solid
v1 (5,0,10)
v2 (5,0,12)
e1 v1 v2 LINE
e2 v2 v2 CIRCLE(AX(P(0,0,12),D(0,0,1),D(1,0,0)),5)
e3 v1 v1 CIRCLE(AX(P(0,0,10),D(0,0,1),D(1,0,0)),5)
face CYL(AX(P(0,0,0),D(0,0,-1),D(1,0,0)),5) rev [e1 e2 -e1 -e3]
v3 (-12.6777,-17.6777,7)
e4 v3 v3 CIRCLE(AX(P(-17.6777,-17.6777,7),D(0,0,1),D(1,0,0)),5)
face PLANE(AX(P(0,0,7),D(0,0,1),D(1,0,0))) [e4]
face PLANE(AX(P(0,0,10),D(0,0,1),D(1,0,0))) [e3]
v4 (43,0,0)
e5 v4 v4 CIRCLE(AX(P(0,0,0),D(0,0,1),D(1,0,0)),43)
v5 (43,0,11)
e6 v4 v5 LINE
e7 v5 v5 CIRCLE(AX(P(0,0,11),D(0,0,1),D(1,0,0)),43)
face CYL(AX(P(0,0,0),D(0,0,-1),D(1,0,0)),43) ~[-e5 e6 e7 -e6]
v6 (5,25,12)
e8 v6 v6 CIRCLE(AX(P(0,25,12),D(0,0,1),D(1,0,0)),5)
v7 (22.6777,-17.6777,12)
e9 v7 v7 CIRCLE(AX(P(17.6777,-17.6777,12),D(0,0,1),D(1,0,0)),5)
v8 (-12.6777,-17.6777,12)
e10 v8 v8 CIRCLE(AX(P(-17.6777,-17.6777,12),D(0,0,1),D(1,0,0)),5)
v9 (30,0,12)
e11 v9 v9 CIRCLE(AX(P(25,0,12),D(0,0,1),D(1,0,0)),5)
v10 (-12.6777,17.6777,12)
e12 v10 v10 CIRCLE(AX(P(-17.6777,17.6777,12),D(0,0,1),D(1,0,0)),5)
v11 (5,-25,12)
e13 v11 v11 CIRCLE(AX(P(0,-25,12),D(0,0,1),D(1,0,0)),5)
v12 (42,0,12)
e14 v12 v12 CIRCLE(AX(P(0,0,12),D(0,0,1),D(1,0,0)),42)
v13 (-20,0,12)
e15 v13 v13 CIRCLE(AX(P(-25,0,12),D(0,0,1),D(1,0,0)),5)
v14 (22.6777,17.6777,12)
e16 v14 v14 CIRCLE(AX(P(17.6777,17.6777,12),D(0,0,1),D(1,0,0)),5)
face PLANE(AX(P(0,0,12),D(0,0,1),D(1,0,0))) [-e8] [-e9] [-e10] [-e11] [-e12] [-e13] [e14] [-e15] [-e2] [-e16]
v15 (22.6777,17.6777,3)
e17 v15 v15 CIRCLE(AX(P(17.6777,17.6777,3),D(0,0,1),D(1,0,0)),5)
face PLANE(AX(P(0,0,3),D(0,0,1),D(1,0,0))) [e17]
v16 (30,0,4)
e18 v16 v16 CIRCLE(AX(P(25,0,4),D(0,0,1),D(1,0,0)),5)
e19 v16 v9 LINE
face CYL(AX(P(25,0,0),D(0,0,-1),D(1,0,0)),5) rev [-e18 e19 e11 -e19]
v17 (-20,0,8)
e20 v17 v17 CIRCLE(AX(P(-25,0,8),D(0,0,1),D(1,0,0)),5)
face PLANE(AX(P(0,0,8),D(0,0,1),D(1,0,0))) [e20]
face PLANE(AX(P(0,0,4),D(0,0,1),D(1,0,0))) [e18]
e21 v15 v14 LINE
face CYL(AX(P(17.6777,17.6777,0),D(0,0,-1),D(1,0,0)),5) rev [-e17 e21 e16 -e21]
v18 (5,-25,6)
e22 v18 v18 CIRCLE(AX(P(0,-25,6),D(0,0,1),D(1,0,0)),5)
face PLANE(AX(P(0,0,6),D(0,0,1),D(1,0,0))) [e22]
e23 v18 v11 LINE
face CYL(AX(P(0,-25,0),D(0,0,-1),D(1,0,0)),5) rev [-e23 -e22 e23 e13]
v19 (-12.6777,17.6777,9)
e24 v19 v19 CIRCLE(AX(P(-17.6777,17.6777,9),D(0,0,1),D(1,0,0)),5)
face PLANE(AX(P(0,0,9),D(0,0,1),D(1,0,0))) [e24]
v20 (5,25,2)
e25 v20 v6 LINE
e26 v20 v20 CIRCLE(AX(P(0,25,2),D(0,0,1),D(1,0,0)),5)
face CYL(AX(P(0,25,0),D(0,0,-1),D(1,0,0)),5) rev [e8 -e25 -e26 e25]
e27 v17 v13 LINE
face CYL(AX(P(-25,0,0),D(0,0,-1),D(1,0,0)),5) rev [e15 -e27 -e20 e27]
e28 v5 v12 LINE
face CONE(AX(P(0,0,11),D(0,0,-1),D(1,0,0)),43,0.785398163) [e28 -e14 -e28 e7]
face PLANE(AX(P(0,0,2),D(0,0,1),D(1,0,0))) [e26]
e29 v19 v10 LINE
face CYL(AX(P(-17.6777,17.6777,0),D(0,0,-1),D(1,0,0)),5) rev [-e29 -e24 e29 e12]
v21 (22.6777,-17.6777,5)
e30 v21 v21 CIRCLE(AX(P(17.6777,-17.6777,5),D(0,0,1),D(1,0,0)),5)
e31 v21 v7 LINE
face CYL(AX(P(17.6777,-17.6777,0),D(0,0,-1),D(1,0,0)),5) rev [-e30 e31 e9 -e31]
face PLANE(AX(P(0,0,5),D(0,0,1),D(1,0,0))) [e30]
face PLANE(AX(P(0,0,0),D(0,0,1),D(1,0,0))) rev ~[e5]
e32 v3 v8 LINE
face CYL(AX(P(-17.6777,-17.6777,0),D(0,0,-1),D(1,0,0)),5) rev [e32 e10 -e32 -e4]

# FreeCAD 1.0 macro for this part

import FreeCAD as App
import Part
import Sketcher

V = App.Vector


def edges_at(feature, points):
    """Names of the edges that pass closest to the given points."""
    edges = feature.Shape.Edges
    near = lambda p: min(range(len(edges)), key=lambda i: edges[i].distToShape(Part.Vertex(*p))[0])
    return sorted({f"Edge{near(p) + 1}" for p in points})

doc = App.newDocument("Part")
body = doc.addObject("PartDesign::Body", "Body")

# Sketch on XY plane
sketch1 = body.newObject("Sketcher::SketchObject", "Sketch")
sketch1.AttachmentSupport = (doc.getObject("XY_Plane"), [""])
sketch1.MapMode = "FlatFace"
sketch1.addGeometry([
    Part.Circle(V(0, 0, 0), V(0, 0, 1), 43),  # 0
    Part.Circle(V(-18, -18, 0), V(0, 0, 1), 5),  # 1
    Part.Circle(V(0, -25, 0), V(0, 0, 1), 5),  # 2
    Part.Circle(V(18, -18, 0), V(0, 0, 1), 5),  # 3
    Part.Circle(V(-25, 0, 0), V(0, 0, 1), 5),  # 4
    Part.Circle(V(-18, 18, 0), V(0, 0, 1), 5),  # 5
    Part.Circle(V(0, 0, 0), V(0, 0, 1), 5),  # 6
    Part.Circle(V(18, 18, 0), V(0, 0, 1), 5),  # 7
    Part.Circle(V(25, 0, 0), V(0, 0, 1), 5),  # 8
    Part.Circle(V(0, 25, 0), V(0, 0, 1), 5),  # 9
], False)
sketch1.addConstraint([
    Sketcher.Constraint("Coincident", 0, 3, -1, 1),
    Sketcher.Constraint("Coincident", 6, 3, -1, 1),
    Sketcher.Constraint("Equal", 1, 2),
    Sketcher.Constraint("Equal", 2, 3),
    Sketcher.Constraint("Equal", 3, 4),
    Sketcher.Constraint("Equal", 4, 5),
    Sketcher.Constraint("Equal", 5, 6),
    Sketcher.Constraint("Equal", 6, 7),
    Sketcher.Constraint("Equal", 7, 8),
    Sketcher.Constraint("Equal", 8, 9),
    Sketcher.Constraint("Symmetric", 3, 3, 5, 3, -1, 1),
    Sketcher.Constraint("Symmetric", 1, 3, 7, 3, -1, 1),
    Sketcher.Constraint("Symmetric", 4, 3, 8, 3, -1, 1),
    Sketcher.Constraint("Symmetric", 2, 3, 9, 3, -1, 1),
    Sketcher.Constraint("Symmetric", 1, 3, 3, 3, -2),
    Sketcher.Constraint("PointOnObject", 2, 3, -2),
    Sketcher.Constraint("PointOnObject", 4, 3, -1),
    Sketcher.Constraint("Diameter", 0, 86.0),
    Sketcher.Constraint("Diameter", 1, 10.0),
    Sketcher.Constraint("DistanceY", 2, 3, -1, 1, 25.0),
    Sketcher.Constraint("DistanceX", 4, 3, -1, 1, 25.0),
    Sketcher.Constraint("DistanceX", 1, 3, -1, 1, 17.6777),
    Sketcher.Constraint("DistanceY", 1, 3, -1, 1, 17.6777),
])
pad1 = body.newObject("PartDesign::Pad", "Pad")
pad1.Profile = sketch1
pad1.Length = 12

# Sketch on XY plane
sketch2 = body.newObject("Sketcher::SketchObject", "Sketch001")
sketch2.AttachmentSupport = (doc.getObject("XY_Plane"), [""])
sketch2.MapMode = "FlatFace"
sketch2.addGeometry(Part.Circle(V(0, 25, 0), V(0, 0, 1), 5), False)
sketch2.addConstraint([
    Sketcher.Constraint("PointOnObject", 0, 3, -2),
    Sketcher.Constraint("Diameter", 0, 10.0),
    Sketcher.Constraint("DistanceY", -1, 1, 0, 3, 25.0),
])
pad2 = body.newObject("PartDesign::Pad", "Pad001")
pad2.Profile = sketch2
pad2.Length = 2

# Sketch on XY plane
sketch3 = body.newObject("Sketcher::SketchObject", "Sketch002")
sketch3.AttachmentSupport = (doc.getObject("XY_Plane"), [""])
sketch3.MapMode = "FlatFace"
sketch3.addGeometry(Part.Circle(V(18, 18, 0), V(0, 0, 1), 5), False)
sketch3.addConstraint([
    Sketcher.Constraint("Diameter", 0, 10.0),
    Sketcher.Constraint("DistanceX", -1, 1, 0, 3, 17.6777),
    Sketcher.Constraint("DistanceY", -1, 1, 0, 3, 17.6777),
])
pad3 = body.newObject("PartDesign::Pad", "Pad002")
pad3.Profile = sketch3
pad3.Length = 3

# Sketch on XY plane
sketch4 = body.newObject("Sketcher::SketchObject", "Sketch003")
sketch4.AttachmentSupport = (doc.getObject("XY_Plane"), [""])
sketch4.MapMode = "FlatFace"
sketch4.addGeometry(Part.Circle(V(25, 0, 0), V(0, 0, 1), 5), False)
sketch4.addConstraint([
    Sketcher.Constraint("PointOnObject", 0, 3, -1),
    Sketcher.Constraint("Diameter", 0, 10.0),
    Sketcher.Constraint("DistanceX", -1, 1, 0, 3, 25.0),
])
pad4 = body.newObject("PartDesign::Pad", "Pad003")
pad4.Profile = sketch4
pad4.Length = 4

# Sketch on XY plane
sketch5 = body.newObject("Sketcher::SketchObject", "Sketch004")
sketch5.AttachmentSupport = (doc.getObject("XY_Plane"), [""])
sketch5.MapMode = "FlatFace"
sketch5.addGeometry(Part.Circle(V(18, -18, 0), V(0, 0, 1), 5), False)
sketch5.addConstraint([
    Sketcher.Constraint("Diameter", 0, 10.0),
    Sketcher.Constraint("DistanceX", -1, 1, 0, 3, 17.6777),
    Sketcher.Constraint("DistanceY", 0, 3, -1, 1, 17.6777),
])
pad5 = body.newObject("PartDesign::Pad", "Pad004")
pad5.Profile = sketch5
pad5.Length = 5

# Sketch on XY plane
sketch6 = body.newObject("Sketcher::SketchObject", "Sketch005")
sketch6.AttachmentSupport = (doc.getObject("XY_Plane"), [""])
sketch6.MapMode = "FlatFace"
sketch6.addGeometry(Part.Circle(V(0, -25, 0), V(0, 0, 1), 5), False)
sketch6.addConstraint([
    Sketcher.Constraint("PointOnObject", 0, 3, -2),
    Sketcher.Constraint("Diameter", 0, 10.0),
    Sketcher.Constraint("DistanceY", 0, 3, -1, 1, 25.0),
])
pad6 = body.newObject("PartDesign::Pad", "Pad005")
pad6.Profile = sketch6
pad6.Length = 6

# Sketch on XY plane
sketch7 = body.newObject("Sketcher::SketchObject", "Sketch006")
sketch7.AttachmentSupport = (doc.getObject("XY_Plane"), [""])
sketch7.MapMode = "FlatFace"
sketch7.addGeometry(Part.Circle(V(-18, -18, 0), V(0, 0, 1), 5), False)
sketch7.addConstraint([
    Sketcher.Constraint("Diameter", 0, 10.0),
    Sketcher.Constraint("DistanceX", 0, 3, -1, 1, 17.6777),
    Sketcher.Constraint("DistanceY", 0, 3, -1, 1, 17.6777),
])
pad7 = body.newObject("PartDesign::Pad", "Pad006")
pad7.Profile = sketch7
pad7.Length = 7

# Sketch on XY plane
sketch8 = body.newObject("Sketcher::SketchObject", "Sketch007")
sketch8.AttachmentSupport = (doc.getObject("XY_Plane"), [""])
sketch8.MapMode = "FlatFace"
sketch8.addGeometry(Part.Circle(V(-25, 0, 0), V(0, 0, 1), 5), False)
sketch8.addConstraint([
    Sketcher.Constraint("PointOnObject", 0, 3, -1),
    Sketcher.Constraint("Diameter", 0, 10.0),
    Sketcher.Constraint("DistanceX", 0, 3, -1, 1, 25.0),
])
pad8 = body.newObject("PartDesign::Pad", "Pad007")
pad8.Profile = sketch8
pad8.Length = 8

# Sketch on XY plane
sketch9 = body.newObject("Sketcher::SketchObject", "Sketch008")
sketch9.AttachmentSupport = (doc.getObject("XY_Plane"), [""])
sketch9.MapMode = "FlatFace"
sketch9.addGeometry(Part.Circle(V(-18, 18, 0), V(0, 0, 1), 5), False)
sketch9.addConstraint([
    Sketcher.Constraint("Diameter", 0, 10.0),
    Sketcher.Constraint("DistanceX", 0, 3, -1, 1, 17.6777),
    Sketcher.Constraint("DistanceY", -1, 1, 0, 3, 17.6777),
])
pad9 = body.newObject("PartDesign::Pad", "Pad008")
pad9.Profile = sketch9
pad9.Length = 9

# Sketch on XY plane
sketch10 = body.newObject("Sketcher::SketchObject", "Sketch009")
sketch10.AttachmentSupport = (doc.getObject("XY_Plane"), [""])
sketch10.MapMode = "FlatFace"
sketch10.addGeometry(Part.Circle(V(0, 0, 0), V(0, 0, 1), 5), False)
sketch10.addConstraint([
    Sketcher.Constraint("Coincident", 0, 3, -1, 1),
    Sketcher.Constraint("Diameter", 0, 10.0),
])
pad10 = body.newObject("PartDesign::Pad", "Pad009")
pad10.Profile = sketch10
pad10.Length = 10
doc.recompute()

chamfer = body.newObject("PartDesign::Chamfer", "Chamfer")
chamfer.Base = (pad10, edges_at(pad10, [(-43, 0, 12)]))
chamfer.Size = 1

doc.recompute()
